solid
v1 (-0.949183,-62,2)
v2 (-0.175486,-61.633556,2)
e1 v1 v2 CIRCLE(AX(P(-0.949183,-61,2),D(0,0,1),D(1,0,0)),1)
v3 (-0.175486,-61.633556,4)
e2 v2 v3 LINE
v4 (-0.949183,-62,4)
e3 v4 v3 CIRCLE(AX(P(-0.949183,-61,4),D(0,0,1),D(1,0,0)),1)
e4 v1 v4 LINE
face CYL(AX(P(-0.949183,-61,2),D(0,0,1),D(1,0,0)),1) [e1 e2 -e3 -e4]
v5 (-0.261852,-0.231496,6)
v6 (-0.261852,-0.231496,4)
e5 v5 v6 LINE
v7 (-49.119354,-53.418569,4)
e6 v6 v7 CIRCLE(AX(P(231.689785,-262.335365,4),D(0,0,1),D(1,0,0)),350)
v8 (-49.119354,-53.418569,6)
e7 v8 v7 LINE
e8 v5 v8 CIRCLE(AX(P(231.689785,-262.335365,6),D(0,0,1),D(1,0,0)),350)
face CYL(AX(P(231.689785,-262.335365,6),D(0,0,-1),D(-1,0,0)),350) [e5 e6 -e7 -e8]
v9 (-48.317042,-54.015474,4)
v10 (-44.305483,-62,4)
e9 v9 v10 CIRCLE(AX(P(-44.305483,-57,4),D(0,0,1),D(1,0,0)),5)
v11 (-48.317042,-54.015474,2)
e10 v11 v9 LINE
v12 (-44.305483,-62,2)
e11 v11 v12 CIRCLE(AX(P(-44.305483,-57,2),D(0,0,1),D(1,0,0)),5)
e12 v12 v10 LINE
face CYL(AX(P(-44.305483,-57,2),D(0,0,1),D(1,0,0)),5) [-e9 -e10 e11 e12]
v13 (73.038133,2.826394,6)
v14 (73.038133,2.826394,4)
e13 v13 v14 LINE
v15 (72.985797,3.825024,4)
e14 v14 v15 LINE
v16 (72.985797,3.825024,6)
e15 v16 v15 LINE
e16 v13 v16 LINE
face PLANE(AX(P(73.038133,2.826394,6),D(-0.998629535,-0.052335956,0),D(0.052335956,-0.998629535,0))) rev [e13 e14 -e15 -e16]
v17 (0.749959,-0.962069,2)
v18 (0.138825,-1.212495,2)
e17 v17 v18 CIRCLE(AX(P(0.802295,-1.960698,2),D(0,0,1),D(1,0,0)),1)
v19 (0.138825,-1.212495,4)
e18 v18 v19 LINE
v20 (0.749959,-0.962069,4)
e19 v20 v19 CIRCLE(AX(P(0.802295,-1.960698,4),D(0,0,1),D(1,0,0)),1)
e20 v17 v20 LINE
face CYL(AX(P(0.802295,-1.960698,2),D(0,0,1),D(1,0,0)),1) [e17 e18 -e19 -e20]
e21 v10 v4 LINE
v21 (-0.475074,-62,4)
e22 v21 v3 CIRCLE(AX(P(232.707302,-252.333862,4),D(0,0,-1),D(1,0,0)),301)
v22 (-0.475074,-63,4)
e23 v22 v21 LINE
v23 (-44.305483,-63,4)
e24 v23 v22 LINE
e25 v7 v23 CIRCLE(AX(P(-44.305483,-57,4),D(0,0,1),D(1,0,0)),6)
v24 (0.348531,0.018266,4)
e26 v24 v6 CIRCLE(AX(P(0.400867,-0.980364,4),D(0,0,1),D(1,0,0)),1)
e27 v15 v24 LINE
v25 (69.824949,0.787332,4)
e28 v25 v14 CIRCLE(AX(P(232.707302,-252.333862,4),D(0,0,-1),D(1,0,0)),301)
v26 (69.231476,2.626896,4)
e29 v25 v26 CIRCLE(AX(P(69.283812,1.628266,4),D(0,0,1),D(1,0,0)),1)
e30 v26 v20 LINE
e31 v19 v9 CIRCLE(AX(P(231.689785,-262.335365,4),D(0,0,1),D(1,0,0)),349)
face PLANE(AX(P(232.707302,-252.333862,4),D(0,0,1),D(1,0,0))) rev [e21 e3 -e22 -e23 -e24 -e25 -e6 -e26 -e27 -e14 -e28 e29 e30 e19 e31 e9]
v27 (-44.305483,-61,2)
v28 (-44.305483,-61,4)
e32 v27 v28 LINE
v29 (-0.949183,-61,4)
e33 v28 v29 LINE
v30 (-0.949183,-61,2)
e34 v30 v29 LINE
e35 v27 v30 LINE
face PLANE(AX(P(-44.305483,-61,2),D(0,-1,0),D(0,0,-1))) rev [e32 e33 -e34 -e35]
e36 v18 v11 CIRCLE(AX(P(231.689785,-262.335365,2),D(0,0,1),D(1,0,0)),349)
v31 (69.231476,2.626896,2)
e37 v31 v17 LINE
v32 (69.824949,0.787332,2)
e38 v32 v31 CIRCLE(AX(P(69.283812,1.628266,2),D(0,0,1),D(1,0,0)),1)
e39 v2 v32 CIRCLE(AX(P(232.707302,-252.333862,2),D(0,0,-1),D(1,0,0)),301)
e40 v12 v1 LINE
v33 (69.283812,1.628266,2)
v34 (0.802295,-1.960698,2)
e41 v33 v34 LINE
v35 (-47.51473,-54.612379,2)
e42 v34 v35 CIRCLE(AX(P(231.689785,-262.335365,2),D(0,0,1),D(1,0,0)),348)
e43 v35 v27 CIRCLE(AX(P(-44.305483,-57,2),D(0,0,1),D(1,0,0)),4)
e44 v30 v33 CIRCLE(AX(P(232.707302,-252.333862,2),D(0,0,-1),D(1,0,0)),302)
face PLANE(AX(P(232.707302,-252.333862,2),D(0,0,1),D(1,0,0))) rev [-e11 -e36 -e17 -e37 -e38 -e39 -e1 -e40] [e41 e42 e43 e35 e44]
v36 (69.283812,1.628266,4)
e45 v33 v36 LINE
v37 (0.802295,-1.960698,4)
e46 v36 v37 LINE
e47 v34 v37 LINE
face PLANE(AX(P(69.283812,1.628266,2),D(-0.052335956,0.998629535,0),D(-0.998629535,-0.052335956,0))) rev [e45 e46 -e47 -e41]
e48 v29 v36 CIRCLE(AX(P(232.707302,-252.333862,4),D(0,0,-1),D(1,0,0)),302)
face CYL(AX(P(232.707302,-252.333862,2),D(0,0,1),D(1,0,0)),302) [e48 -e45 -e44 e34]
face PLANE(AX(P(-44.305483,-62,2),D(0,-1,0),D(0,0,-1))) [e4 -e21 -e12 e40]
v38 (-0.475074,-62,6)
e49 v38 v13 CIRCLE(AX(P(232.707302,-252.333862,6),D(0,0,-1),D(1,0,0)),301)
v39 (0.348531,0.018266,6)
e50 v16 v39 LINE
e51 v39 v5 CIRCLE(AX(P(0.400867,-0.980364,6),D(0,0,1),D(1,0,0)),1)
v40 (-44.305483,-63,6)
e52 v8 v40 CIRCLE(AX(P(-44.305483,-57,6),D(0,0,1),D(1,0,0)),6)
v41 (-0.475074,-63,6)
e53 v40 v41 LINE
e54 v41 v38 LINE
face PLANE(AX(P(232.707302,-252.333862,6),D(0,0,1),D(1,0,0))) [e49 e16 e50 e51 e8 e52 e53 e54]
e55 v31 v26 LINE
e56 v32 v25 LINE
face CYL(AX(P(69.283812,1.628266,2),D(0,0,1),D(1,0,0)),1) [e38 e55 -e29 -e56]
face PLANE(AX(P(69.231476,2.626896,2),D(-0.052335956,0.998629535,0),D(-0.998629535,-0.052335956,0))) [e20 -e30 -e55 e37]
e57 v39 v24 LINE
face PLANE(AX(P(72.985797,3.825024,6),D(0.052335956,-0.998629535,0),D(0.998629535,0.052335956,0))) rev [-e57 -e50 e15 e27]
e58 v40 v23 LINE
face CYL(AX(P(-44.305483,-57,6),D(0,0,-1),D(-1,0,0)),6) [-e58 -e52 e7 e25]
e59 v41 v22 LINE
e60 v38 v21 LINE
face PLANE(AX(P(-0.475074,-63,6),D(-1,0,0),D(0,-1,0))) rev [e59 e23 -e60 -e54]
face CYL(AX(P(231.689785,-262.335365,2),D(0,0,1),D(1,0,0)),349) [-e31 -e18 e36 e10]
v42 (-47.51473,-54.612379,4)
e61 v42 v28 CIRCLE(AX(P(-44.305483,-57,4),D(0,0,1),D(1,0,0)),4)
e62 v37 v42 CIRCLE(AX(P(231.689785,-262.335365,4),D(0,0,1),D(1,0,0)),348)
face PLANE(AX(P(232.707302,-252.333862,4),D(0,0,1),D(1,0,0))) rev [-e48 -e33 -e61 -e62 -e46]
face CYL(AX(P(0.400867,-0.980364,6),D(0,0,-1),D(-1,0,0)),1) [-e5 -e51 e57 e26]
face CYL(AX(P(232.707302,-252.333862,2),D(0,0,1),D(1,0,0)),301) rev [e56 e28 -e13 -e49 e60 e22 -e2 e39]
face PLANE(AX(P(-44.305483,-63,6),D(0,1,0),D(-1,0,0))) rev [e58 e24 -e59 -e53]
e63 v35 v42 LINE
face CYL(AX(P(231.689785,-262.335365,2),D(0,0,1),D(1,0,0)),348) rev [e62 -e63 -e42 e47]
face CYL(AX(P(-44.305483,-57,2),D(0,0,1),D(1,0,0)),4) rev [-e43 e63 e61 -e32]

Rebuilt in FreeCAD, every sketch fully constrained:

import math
import FreeCAD as App
import Part
import Sketcher
Q = App.Units.Quantity

doc = App.newDocument("Part")
body = doc.addObject("PartDesign::Body", "Body")

# Sketch on XY plane
sketch1 = body.newObject("Sketcher::SketchObject", "Sketch")
sketch1.AttachmentSupport = (doc.getObject("XY_Plane"), [""])
sketch1.MapMode = "FlatFace"
sketch1.AttachmentOffset = App.Placement(App.Vector(0, 0, 4), App.Rotation())
sketch1.addGeometry([
    Part.LineSegment(App.Vector(-44.3, -62, 0), App.Vector(-0.9, -62, 0)),  # 0
    Part.ArcOfCircle(Part.Circle(App.Vector(-0.9, -61, 0), App.Vector(0, 0, 1), 1), math.radians(-90), math.radians(-39)),  # 1
    Part.ArcOfCircle(Part.Circle(App.Vector(232.7, -252.3, 0), App.Vector(0, 0, 1), 301), math.radians(122.76), math.radians(140.69)),  # 2
    Part.ArcOfCircle(Part.Circle(App.Vector(69.3, 1.6, 0), App.Vector(0, 0, 1), 1), math.radians(-57), math.radians(93)),  # 3
    Part.LineSegment(App.Vector(69.2, 2.6, 0), App.Vector(0.7, -1, 0)),  # 4
    Part.ArcOfCircle(Part.Circle(App.Vector(0.8, -2, 0), App.Vector(0, 0, 1), 1), math.radians(93), math.radians(132)),  # 5
    Part.ArcOfCircle(Part.Circle(App.Vector(231.7, -262.3, 0), App.Vector(0, 0, 1), 349), math.radians(131.57), math.radians(143.35)),  # 6
    Part.ArcOfCircle(Part.Circle(App.Vector(-44.3, -57, 0), App.Vector(0, 0, 1), 5), math.radians(143), math.radians(270)),  # 7
    Part.LineSegment(App.Vector(0.8, -2, 0), App.Vector(69.3, 1.6, 0)),  # 8
    Part.ArcOfCircle(Part.Circle(App.Vector(232.7, -252.3, 0), App.Vector(0, 0, 1), 302), math.radians(122.76), math.radians(140.69)),  # 9
    Part.LineSegment(App.Vector(-0.9, -61, 0), App.Vector(-44.3, -61, 0)),  # 10
    Part.ArcOfCircle(Part.Circle(App.Vector(-44.3, -57, 0), App.Vector(0, 0, 1), 4), math.radians(143), math.radians(270)),  # 11
    Part.ArcOfCircle(Part.Circle(App.Vector(231.7, -262.3, 0), App.Vector(0, 0, 1), 348), math.radians(131.57), math.radians(143.35)),  # 12
], False)
sketch1.addConstraint([
    Sketcher.Constraint("Tangent", 0, 2, 1, 1),
    Sketcher.Constraint("Tangent", 1, 2, 2, 2),
    Sketcher.Constraint("Tangent", 2, 1, 3, 1),
    Sketcher.Constraint("Tangent", 3, 2, 4, 1),
    Sketcher.Constraint("Tangent", 4, 2, 5, 1),
    Sketcher.Constraint("Tangent", 5, 2, 6, 1),
    Sketcher.Constraint("Tangent", 6, 2, 7, 1),
    Sketcher.Constraint("Tangent", 7, 2, 0, 1),
    Sketcher.Constraint("Coincident", 8, 2, 9, 1),
    Sketcher.Constraint("Coincident", 9, 2, 10, 1),
    Sketcher.Constraint("Tangent", 10, 2, 11, 2),
    Sketcher.Constraint("Tangent", 11, 1, 12, 2),
    Sketcher.Constraint("Coincident", 12, 1, 8, 1),
    Sketcher.Constraint("Horizontal", 0),
    Sketcher.Constraint("Horizontal", 10),
    Sketcher.Constraint("Coincident", 9, 3, 2, 3),
    Sketcher.Constraint("Coincident", 11, 3, 7, 3),
    Sketcher.Constraint("Coincident", 12, 3, 6, 3),
    Sketcher.Constraint("Coincident", 8, 2, 3, 3),
    Sketcher.Constraint("Coincident", 9, 2, 1, 3),
    Sketcher.Constraint("Coincident", 12, 1, 5, 3),
    Sketcher.Constraint("Radius", 1, 1.0),
    Sketcher.Constraint("Radius", 2, 301.0),
    Sketcher.Constraint("Radius", 6, 349.0),
    Sketcher.Constraint("Radius", 7, 5.0),
    Sketcher.Constraint("Angle", 4, Q("-177 deg")),
    Sketcher.Constraint("DistanceY", 1, 3, -1, 1, 61.0),
    Sketcher.Constraint("DistanceX", 0, 1, 0, 2, 43.3563),
    Sketcher.Constraint("DistanceY", 5, 3, -1, 1, 1.960698),
    Sketcher.Constraint("DistanceX", -1, 1, 3, 3, 69.283812),
    Sketcher.Constraint("DistanceX", -1, 1, 4, 2, 0.749959),
    Sketcher.Constraint("DistanceX", 11, 1, -1, 1, 47.51473),
])
pad1 = body.newObject("PartDesign::Pad", "Pad")
pad1.Profile = sketch1
pad1.Length = 2
pad1.Reversed = True

# Sketch on XY plane
sketch2 = body.newObject("Sketcher::SketchObject", "Sketch001")
sketch2.AttachmentSupport = (doc.getObject("XY_Plane"), [""])
sketch2.MapMode = "FlatFace"
sketch2.AttachmentOffset = App.Placement(App.Vector(0, 0, 6), App.Rotation())
sketch2.addGeometry([
    Part.LineSegment(App.Vector(73, 2.8, 0), App.Vector(73, 3.8, 0)),  # 0
    Part.LineSegment(App.Vector(73, 3.8, 0), App.Vector(0.3, 0, 0)),  # 1
    Part.ArcOfCircle(Part.Circle(App.Vector(0.4, -1, 0), App.Vector(0, 0, 1), 1), math.radians(93), math.radians(132)),  # 2
    Part.ArcOfCircle(Part.Circle(App.Vector(231.7, -262.3, 0), App.Vector(0, 0, 1), 350), math.radians(131.51), math.radians(143.35)),  # 3
    Part.ArcOfCircle(Part.Circle(App.Vector(-44.3, -57, 0), App.Vector(0, 0, 1), 6), math.radians(143), math.radians(270)),  # 4
    Part.LineSegment(App.Vector(-44.3, -63, 0), App.Vector(-0.5, -63, 0)),  # 5
    Part.LineSegment(App.Vector(-0.5, -63, 0), App.Vector(-0.5, -62, 0)),  # 6
    Part.ArcOfCircle(Part.Circle(App.Vector(232.7, -252.3, 0), App.Vector(0, 0, 1), 301), math.radians(122.04), math.radians(140.78)),  # 7
], False)
sketch2.addConstraint([
    Sketcher.Constraint("Coincident", 0, 2, 1, 1),
    Sketcher.Constraint("Tangent", 1, 2, 2, 1),
    Sketcher.Constraint("Tangent", 2, 2, 3, 1),
    Sketcher.Constraint("Tangent", 3, 2, 4, 1),
    Sketcher.Constraint("Tangent", 4, 2, 5, 1),
    Sketcher.Constraint("Coincident", 5, 2, 6, 1),
    Sketcher.Constraint("Coincident", 6, 2, 7, 2),
    Sketcher.Constraint("Coincident", 7, 1, 0, 1),
    Sketcher.Constraint("Horizontal", 5),
    Sketcher.Constraint("Vertical", 6),
    Sketcher.Constraint("Perpendicular", 0, 1),
    Sketcher.Constraint("Radius", 2, 1.0),
    Sketcher.Constraint("Radius", 3, 350.0),
    Sketcher.Constraint("Radius", 4, 6.0),
    Sketcher.Constraint("Radius", 7, 301.0),
    Sketcher.Constraint("DistanceY", 6, 1, 6, 2, 1.0),
    Sketcher.Constraint("Angle", 0, Q("93 deg")),
    Sketcher.Constraint("Distance", 0, 1.0),
    Sketcher.Constraint("DistanceY", 4, 3, -1, 1, 57.0),
    Sketcher.Constraint("DistanceY", 3, 3, 2, 3, 261.355001),
    Sketcher.Constraint("DistanceX", 5, 1, 5, 2, 43.830409),
    Sketcher.Constraint("DistanceY", 7, 3, 2, 3, 251.353499),
    Sketcher.Constraint("Distance", 1, 72.73695),
    Sketcher.Constraint("DistanceX", -1, 1, 1, 2, 0.348531),
])
pad2 = body.newObject("PartDesign::Pad", "Pad001")
pad2.Profile = sketch2
pad2.Length = 2
pad2.Reversed = True

doc.recompute()
